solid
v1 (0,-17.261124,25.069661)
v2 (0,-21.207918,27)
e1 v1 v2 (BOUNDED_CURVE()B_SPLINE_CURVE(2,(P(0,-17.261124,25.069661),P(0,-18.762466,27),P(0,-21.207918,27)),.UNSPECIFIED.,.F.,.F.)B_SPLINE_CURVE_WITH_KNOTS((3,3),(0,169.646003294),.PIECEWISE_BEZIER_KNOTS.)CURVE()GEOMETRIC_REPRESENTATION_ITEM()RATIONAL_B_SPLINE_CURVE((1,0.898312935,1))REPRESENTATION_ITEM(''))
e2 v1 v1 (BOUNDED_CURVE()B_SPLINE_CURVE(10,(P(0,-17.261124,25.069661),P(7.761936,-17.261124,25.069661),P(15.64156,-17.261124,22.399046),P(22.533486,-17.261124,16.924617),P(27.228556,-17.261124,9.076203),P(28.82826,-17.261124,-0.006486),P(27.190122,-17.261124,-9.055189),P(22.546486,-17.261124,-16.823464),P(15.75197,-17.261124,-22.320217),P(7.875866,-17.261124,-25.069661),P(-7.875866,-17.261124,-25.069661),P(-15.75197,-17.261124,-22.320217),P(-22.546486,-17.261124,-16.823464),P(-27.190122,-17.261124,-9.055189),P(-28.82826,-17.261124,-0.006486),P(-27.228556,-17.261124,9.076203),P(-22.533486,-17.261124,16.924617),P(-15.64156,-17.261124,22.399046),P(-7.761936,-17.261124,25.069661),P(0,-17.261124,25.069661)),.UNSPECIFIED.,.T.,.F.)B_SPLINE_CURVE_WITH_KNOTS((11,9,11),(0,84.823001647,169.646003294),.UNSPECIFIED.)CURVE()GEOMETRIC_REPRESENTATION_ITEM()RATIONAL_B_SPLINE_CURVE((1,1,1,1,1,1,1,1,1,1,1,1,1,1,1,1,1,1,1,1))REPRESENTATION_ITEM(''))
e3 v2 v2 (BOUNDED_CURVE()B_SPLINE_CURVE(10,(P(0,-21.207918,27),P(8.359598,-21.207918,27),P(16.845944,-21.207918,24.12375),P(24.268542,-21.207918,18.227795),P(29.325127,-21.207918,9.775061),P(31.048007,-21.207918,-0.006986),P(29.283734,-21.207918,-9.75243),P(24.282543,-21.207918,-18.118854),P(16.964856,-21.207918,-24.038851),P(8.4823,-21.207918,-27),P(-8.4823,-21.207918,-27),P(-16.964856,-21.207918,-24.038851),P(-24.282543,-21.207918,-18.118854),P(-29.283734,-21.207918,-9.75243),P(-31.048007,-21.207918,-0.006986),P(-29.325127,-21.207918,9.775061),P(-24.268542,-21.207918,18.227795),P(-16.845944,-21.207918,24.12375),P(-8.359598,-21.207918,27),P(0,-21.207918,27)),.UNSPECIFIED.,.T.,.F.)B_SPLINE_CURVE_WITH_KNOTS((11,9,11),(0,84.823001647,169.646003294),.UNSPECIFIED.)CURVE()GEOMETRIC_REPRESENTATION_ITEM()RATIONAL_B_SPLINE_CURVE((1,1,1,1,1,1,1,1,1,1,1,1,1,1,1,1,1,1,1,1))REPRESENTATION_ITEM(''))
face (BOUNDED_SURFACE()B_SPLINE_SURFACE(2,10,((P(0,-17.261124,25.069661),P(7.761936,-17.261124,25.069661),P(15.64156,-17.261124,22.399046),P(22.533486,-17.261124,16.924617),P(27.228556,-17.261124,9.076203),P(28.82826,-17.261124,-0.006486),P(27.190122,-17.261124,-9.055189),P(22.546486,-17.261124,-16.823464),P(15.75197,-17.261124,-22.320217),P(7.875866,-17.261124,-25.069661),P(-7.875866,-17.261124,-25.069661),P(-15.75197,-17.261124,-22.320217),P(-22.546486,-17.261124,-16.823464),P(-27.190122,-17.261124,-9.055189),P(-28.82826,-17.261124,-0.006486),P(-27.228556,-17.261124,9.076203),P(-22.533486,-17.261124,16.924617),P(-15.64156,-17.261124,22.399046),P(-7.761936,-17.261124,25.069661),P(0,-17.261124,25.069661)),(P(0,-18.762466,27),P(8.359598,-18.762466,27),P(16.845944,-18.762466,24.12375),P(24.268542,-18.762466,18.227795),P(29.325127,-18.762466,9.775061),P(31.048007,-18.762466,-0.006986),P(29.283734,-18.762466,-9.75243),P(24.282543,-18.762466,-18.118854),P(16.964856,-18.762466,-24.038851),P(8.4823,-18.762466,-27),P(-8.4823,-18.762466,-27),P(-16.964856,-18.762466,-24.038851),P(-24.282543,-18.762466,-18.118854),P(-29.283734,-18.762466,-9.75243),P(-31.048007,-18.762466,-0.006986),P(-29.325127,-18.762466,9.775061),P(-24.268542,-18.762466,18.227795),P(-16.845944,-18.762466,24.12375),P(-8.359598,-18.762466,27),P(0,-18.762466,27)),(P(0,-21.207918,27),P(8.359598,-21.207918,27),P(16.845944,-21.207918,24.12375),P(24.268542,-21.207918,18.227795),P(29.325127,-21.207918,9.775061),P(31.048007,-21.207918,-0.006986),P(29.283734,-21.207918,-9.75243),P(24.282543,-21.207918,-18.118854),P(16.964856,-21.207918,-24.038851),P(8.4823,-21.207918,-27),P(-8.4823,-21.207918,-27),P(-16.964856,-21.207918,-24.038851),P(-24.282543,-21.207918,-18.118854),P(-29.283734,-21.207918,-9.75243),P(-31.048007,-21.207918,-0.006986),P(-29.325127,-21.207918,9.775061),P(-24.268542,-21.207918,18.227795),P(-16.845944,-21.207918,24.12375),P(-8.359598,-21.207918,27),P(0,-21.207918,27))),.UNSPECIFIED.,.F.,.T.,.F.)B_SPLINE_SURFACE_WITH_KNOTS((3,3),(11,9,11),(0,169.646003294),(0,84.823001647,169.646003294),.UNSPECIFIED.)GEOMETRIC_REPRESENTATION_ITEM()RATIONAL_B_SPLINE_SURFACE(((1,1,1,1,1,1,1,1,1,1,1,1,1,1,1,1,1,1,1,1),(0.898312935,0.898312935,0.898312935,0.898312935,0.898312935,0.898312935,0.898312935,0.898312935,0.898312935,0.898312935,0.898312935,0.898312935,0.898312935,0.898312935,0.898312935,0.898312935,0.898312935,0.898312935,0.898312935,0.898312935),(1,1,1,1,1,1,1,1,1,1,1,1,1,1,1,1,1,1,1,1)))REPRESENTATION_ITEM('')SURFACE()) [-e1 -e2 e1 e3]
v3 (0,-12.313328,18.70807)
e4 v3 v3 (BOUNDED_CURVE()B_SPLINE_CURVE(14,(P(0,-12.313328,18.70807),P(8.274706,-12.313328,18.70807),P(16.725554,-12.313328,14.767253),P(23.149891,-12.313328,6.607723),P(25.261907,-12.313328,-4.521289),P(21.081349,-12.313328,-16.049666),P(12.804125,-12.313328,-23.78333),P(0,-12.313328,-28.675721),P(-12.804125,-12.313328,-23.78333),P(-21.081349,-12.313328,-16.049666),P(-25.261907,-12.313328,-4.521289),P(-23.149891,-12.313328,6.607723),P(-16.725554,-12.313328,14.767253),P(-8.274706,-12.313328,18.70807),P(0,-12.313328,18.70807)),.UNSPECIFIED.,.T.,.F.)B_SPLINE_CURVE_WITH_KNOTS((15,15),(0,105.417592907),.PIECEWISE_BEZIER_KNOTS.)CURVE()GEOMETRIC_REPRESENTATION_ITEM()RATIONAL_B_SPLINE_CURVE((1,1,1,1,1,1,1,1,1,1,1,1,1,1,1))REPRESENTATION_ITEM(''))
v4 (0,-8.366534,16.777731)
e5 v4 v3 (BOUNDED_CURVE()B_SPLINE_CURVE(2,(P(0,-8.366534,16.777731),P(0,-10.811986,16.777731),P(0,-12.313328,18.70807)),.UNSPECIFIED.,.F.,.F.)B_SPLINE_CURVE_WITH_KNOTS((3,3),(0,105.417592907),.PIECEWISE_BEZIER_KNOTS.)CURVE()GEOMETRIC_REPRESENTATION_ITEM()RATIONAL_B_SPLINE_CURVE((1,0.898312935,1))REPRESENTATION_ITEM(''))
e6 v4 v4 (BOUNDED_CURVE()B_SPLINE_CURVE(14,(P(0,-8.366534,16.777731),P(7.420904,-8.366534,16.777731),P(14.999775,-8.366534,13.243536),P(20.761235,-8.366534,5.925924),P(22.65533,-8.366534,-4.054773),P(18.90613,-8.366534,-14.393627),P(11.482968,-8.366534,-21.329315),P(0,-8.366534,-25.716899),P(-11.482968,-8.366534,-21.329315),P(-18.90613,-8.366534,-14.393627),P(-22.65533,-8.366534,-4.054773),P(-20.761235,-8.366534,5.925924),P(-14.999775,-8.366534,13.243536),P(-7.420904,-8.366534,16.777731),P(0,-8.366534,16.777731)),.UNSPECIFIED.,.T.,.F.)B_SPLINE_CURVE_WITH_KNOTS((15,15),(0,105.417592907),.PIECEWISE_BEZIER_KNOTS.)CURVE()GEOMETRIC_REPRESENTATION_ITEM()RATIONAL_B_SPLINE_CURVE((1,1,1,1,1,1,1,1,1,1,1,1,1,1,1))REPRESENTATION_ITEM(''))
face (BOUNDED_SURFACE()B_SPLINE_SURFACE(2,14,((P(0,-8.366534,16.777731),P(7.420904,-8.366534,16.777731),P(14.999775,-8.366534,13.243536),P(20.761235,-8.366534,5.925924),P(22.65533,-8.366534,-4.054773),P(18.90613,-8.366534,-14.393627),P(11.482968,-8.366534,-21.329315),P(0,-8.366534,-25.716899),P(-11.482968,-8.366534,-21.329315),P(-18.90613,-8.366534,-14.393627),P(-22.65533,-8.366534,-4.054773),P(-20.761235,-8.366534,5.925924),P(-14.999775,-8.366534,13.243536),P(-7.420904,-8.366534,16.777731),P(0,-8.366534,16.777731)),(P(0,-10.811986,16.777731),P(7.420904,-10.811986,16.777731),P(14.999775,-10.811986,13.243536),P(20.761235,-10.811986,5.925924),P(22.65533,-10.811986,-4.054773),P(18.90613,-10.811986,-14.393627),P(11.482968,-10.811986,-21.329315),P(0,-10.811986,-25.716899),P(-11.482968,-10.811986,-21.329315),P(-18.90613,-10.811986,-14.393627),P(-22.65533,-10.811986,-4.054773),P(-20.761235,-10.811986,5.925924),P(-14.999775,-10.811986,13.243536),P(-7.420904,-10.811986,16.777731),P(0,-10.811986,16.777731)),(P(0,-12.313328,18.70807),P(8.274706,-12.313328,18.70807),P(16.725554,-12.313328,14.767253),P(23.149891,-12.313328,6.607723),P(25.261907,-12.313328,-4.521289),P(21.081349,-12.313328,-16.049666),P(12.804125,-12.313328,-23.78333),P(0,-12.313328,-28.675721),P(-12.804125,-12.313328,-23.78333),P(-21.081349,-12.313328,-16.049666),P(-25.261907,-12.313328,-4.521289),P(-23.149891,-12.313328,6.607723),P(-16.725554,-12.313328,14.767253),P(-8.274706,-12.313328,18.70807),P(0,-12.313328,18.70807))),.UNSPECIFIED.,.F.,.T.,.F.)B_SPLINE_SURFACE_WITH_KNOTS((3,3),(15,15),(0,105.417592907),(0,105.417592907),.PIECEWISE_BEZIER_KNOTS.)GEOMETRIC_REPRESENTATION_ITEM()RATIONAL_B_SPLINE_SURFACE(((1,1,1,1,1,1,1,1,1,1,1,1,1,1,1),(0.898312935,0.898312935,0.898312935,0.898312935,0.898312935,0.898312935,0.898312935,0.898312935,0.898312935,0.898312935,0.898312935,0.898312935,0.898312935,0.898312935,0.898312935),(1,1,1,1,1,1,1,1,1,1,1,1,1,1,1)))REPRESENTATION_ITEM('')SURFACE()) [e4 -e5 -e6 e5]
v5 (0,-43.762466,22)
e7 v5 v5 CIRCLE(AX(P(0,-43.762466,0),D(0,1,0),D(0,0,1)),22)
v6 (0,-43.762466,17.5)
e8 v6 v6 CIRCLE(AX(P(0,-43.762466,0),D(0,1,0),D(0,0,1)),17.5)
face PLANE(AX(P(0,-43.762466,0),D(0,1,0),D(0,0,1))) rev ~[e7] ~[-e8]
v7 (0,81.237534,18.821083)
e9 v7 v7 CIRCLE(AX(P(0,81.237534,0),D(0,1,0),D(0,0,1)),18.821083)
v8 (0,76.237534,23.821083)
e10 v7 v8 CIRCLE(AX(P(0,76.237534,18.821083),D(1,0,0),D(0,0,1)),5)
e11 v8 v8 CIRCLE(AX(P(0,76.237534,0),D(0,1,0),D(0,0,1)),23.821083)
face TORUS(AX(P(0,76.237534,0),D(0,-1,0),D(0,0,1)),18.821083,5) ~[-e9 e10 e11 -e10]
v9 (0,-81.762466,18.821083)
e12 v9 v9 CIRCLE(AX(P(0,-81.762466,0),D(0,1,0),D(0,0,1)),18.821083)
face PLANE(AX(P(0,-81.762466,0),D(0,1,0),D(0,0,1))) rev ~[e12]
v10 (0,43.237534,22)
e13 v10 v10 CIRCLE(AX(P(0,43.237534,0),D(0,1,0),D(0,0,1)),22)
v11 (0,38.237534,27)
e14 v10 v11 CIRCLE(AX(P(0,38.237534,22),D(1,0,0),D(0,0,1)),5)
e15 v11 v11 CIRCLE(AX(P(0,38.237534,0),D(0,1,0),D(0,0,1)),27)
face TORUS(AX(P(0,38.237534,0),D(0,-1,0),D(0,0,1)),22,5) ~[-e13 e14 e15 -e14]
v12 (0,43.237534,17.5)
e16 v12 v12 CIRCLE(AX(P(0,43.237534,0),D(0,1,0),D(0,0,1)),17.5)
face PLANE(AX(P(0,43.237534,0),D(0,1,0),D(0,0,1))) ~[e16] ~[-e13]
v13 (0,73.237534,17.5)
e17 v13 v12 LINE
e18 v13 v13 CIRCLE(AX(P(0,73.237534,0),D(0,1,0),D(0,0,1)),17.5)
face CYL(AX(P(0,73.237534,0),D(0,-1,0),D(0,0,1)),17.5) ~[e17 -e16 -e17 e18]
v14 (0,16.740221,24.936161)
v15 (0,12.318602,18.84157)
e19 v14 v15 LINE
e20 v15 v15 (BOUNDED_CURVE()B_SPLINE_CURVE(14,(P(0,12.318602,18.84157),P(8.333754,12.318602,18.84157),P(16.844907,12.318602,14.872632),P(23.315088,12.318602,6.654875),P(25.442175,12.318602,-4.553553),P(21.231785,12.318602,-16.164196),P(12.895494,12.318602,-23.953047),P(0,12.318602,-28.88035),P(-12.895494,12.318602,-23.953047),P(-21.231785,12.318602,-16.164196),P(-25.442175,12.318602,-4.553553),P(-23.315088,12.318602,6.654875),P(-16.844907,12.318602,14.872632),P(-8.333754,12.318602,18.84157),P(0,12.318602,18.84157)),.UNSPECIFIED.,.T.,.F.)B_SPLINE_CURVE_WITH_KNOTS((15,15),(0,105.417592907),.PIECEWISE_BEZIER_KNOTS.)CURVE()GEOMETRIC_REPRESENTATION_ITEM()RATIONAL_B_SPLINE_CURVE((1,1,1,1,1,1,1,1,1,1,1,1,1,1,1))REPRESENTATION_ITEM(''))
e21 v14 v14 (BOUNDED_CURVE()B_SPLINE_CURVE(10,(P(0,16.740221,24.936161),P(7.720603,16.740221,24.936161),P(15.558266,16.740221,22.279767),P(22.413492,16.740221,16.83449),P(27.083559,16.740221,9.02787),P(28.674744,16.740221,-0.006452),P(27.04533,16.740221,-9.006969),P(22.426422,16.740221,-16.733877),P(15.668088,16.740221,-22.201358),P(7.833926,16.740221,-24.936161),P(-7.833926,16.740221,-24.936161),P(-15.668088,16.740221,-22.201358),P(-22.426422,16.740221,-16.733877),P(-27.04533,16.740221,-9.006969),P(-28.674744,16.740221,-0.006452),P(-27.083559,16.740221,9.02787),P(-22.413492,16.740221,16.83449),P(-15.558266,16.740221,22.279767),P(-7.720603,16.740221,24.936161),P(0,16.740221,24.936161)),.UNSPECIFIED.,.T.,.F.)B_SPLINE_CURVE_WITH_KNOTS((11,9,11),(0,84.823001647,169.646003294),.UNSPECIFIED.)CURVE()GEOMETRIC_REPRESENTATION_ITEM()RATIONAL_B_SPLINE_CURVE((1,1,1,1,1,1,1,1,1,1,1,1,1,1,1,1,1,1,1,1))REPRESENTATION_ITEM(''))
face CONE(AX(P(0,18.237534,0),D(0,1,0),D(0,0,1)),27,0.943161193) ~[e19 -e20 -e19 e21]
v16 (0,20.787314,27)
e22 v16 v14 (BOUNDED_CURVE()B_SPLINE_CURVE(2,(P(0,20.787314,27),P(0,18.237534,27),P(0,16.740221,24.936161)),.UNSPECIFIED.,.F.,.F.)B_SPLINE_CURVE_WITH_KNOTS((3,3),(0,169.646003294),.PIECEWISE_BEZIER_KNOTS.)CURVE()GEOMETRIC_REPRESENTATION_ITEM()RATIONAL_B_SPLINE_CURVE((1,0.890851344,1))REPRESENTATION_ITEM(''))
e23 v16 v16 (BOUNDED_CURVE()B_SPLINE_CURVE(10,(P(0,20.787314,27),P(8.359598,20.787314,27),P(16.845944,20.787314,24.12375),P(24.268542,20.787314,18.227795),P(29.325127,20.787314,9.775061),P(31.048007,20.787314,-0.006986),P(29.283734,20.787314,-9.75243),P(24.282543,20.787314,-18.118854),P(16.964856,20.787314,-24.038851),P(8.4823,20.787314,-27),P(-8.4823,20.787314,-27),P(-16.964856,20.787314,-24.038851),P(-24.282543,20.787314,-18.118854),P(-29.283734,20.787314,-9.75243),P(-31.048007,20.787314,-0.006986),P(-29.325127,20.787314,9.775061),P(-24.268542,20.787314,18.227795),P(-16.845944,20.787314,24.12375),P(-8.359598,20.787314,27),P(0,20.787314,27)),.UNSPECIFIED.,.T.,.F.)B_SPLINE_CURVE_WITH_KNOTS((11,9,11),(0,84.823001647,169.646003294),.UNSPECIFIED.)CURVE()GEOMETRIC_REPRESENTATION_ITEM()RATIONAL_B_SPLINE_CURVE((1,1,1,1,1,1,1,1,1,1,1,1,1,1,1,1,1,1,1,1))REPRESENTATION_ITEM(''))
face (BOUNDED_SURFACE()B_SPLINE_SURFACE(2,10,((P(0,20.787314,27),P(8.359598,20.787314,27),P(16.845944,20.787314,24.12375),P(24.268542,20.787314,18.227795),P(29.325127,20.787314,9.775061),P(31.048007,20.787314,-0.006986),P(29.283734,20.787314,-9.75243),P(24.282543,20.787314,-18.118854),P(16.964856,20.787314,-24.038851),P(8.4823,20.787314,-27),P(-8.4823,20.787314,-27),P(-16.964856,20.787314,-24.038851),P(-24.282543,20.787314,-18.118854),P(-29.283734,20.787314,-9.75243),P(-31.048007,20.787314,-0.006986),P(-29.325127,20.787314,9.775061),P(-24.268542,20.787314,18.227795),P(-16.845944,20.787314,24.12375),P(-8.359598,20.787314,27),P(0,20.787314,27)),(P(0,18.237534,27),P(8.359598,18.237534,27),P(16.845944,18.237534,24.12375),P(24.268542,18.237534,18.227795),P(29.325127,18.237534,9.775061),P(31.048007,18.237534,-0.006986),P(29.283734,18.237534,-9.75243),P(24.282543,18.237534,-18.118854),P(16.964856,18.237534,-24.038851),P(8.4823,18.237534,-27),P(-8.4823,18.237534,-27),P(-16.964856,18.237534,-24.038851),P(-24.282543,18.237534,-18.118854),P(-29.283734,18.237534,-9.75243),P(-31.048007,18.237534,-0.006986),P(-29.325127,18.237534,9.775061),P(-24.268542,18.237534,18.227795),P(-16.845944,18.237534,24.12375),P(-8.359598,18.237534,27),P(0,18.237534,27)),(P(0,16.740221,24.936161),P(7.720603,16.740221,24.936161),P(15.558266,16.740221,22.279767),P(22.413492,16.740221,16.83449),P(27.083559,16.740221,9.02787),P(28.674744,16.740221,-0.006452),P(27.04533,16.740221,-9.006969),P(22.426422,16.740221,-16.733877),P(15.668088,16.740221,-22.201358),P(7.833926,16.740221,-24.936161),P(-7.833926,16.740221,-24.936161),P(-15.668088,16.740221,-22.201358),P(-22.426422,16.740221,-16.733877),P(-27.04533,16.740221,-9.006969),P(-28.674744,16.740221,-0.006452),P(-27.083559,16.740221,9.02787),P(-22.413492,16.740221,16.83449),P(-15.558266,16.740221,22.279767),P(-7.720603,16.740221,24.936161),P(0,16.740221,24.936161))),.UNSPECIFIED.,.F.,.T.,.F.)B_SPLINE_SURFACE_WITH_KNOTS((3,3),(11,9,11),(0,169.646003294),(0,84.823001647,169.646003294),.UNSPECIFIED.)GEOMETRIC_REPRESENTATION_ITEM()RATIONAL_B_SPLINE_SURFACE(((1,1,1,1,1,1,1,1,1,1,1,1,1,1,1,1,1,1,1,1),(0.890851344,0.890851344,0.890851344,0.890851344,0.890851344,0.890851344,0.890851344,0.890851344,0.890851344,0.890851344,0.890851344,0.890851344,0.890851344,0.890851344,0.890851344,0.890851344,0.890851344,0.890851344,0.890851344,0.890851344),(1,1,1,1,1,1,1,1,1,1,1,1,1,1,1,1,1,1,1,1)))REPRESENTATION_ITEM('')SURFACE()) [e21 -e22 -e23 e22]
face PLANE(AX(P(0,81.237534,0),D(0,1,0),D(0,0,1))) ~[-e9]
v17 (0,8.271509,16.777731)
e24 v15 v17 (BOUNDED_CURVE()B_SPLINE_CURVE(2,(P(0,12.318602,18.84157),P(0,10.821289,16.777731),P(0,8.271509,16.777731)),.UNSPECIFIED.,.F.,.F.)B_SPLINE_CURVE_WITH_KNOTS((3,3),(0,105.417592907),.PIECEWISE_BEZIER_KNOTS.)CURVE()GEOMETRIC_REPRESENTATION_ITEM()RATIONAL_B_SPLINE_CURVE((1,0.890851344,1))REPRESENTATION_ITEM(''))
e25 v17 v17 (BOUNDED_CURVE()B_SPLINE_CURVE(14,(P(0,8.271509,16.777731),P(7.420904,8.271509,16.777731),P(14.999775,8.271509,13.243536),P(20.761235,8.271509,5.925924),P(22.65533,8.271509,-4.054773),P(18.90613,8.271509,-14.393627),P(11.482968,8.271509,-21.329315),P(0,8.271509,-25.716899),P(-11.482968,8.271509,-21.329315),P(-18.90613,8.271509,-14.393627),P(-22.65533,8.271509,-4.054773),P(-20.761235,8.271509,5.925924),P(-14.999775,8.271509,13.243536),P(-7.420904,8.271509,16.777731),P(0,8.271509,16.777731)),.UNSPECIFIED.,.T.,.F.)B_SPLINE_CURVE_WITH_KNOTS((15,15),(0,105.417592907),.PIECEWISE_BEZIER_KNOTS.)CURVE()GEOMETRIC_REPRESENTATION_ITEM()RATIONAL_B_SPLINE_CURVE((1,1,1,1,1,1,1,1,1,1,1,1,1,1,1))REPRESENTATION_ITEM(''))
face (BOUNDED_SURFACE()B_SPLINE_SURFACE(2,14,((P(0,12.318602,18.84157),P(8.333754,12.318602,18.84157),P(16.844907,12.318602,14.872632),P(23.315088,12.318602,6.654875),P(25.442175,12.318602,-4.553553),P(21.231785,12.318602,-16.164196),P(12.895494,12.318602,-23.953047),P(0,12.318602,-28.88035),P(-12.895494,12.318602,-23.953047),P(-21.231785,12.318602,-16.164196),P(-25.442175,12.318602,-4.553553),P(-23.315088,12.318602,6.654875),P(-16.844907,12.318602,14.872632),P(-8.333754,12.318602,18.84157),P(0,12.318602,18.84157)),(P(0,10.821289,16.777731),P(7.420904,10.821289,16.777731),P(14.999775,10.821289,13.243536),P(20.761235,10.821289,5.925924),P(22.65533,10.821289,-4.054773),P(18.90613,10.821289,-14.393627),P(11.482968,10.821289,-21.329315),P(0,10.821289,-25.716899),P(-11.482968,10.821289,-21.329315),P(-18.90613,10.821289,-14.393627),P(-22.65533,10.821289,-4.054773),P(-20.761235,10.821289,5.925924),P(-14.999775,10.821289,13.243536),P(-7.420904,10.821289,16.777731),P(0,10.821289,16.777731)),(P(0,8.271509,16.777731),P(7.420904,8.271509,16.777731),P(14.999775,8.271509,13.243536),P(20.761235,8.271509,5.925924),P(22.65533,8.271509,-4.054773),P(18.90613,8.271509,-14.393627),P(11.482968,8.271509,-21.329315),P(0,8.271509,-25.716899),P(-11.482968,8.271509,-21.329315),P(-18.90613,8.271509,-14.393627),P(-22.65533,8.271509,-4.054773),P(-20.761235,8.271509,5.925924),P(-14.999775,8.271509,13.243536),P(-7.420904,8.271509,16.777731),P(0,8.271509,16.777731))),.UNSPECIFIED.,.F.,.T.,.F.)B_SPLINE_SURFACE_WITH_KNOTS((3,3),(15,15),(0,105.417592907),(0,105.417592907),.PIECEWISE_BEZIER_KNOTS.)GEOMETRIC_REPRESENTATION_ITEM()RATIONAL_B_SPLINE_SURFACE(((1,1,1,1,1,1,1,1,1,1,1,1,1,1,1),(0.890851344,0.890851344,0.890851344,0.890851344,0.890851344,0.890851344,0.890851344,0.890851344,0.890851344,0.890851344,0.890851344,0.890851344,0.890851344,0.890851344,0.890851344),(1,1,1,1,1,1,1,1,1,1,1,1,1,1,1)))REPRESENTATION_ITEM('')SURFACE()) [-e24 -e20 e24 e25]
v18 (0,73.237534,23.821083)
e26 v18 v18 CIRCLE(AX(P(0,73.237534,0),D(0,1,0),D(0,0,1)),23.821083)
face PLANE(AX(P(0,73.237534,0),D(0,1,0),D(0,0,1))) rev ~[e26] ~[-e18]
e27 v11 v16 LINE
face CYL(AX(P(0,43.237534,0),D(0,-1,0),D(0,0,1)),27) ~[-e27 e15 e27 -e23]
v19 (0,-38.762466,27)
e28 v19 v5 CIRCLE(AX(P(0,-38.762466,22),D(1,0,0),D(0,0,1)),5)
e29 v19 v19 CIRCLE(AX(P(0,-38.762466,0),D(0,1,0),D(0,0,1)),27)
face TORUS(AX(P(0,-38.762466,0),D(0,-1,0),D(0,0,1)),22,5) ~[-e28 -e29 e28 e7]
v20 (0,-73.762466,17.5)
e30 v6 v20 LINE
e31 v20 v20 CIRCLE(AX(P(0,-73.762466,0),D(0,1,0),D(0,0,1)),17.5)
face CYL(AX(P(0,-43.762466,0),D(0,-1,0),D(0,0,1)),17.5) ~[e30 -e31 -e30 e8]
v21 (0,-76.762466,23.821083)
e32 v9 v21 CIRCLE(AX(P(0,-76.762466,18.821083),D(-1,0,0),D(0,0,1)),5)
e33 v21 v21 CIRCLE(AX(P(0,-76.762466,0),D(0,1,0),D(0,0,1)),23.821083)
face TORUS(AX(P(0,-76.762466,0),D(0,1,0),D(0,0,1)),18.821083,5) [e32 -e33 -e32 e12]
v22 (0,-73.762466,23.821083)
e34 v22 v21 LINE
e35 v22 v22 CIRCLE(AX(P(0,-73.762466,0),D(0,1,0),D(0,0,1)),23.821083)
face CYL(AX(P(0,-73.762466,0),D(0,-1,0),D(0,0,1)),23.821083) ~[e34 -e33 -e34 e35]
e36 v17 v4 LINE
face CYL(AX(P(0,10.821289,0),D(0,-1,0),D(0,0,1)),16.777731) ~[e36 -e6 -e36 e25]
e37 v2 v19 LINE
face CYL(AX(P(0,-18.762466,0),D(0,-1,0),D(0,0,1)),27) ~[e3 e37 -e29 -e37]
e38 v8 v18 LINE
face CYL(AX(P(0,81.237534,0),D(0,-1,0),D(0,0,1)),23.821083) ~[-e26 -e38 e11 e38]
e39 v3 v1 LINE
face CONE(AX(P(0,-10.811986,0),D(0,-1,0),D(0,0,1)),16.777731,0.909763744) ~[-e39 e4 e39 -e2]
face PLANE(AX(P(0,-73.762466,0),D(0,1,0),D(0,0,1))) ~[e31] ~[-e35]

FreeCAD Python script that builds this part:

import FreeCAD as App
import Part
import Sketcher

V = App.Vector


def edges_at(feature, points):
    """Names of the edges that pass closest to the given points."""
    edges = feature.Shape.Edges
    near = lambda p: min(range(len(edges)), key=lambda i: edges[i].distToShape(Part.Vertex(*p))[0])
    return sorted({f"Edge{near(p) + 1}" for p in points})


def add_polygon(sketch, points):
    """Adds a closed chain of lines whose ends are joined by coincident constraints."""
    first, n = sketch.GeometryCount, len(points)
    for a, b in zip(points, points[1:] + points[:1]):
        sketch.addGeometry(Part.LineSegment(App.Vector(*a, 0), App.Vector(*b, 0)), False)
    for i in range(n):
        sketch.addConstraint(Sketcher.Constraint("Coincident", first + i, 2, first + (i + 1) % n, 1))

doc = App.newDocument("Part")
body = doc.addObject("PartDesign::Body", "Body")

# Sketch on YZ plane
sketch1 = doc.addObject("Sketcher::SketchObject", "Sketch")
body.addObject(sketch1)
sketch1.AttachmentSupport = (doc.YZ_Plane, [""])
sketch1.MapMode = "FlatFace"
add_polygon(sketch1, [(-81.762466, 23.821083), (-81.762466, 0), (81.237534, 0), (81.237534, 23.821083), (73.237534, 23.821083), (73.237534, 17.5), (43.237534, 17.5), (43.237534, 27), (18.237534, 27), (10.821289, 16.777731), (-10.811986, 16.777731), (-18.762466, 27), (-43.762466, 27), (-43.762466, 17.5), (-73.762466, 17.5), (-73.762466, 23.821083)])  # lines 0-15
sketch1.addConstraint([
    Sketcher.Constraint("Vertical", 0),
    Sketcher.Constraint("Horizontal", 1),
    Sketcher.Constraint("Vertical", 2),
    Sketcher.Constraint("Horizontal", 3),
    Sketcher.Constraint("Vertical", 4),
    Sketcher.Constraint("Horizontal", 5),
    Sketcher.Constraint("Vertical", 6),
    Sketcher.Constraint("Horizontal", 7),
    Sketcher.Constraint("Horizontal", 9),
    Sketcher.Constraint("Horizontal", 11),
    Sketcher.Constraint("Vertical", 12),
    Sketcher.Constraint("Horizontal", 13),
    Sketcher.Constraint("Vertical", 14),
    Sketcher.Constraint("Horizontal", 15),
    Sketcher.Constraint("PointOnObject", 0, 2, -1),
    Sketcher.Constraint("Horizontal", 7, 2, 10, 2),
    Sketcher.Constraint("Horizontal", 5, 2, 12, 2),
    Sketcher.Constraint("Horizontal", 3, 2, 14, 2),
    Sketcher.Constraint("Equal", 7, 11),
    Sketcher.Constraint("Equal", 5, 13),
    Sketcher.Constraint("Equal", 3, 15),
    Sketcher.Constraint("DistanceX", 1, 1, 1, 2, 163.0),
    Sketcher.Constraint("DistanceX", 3, 2, 3, 1, 8.0),
    Sketcher.Constraint("DistanceX", 5, 2, 5, 1, 30.0),
    Sketcher.Constraint("DistanceX", 7, 2, 7, 1, 25.0),
    Sketcher.Constraint("DistanceY", 6, 1, 6, 2, 9.5),
    Sketcher.Constraint("DistanceY", -1, 1, 6, 2, 27.0),
    Sketcher.Constraint("Distance", 8, 12.629152),
    Sketcher.Constraint("DistanceX", 9, 2, 9, 1, 21.633275),
    Sketcher.Constraint("DistanceY", 0, 2, 0, 1, 23.821083),
    Sketcher.Constraint("DistanceX", -1, 1, 8, 2, 10.821289),
    Sketcher.Constraint("DistanceY", -1, 1, 8, 2, 16.777731),
])
revolution = doc.addObject("PartDesign::Revolution", "Revolution")
body.addObject(revolution)
revolution.Profile = sketch1
revolution.ReferenceAxis = (sketch1, ["H_Axis"])
revolution.Angle = 360
doc.recompute()

fillet = doc.addObject("PartDesign::Fillet", "Fillet")
body.addObject(fillet)
fillet.Base = (revolution, edges_at(revolution, [
    (0, -81.762, -23.821),
    (0, -43.762, -27),
    (0, -18.762, -27),
    (0, -10.812, -16.778),
    (0, 10.821, -16.778),
    (0, 18.238, -27),
    (0, 43.238, -27),
    (0, 81.238, -23.821),
]))
fillet.Radius = 5

doc.recompute()
